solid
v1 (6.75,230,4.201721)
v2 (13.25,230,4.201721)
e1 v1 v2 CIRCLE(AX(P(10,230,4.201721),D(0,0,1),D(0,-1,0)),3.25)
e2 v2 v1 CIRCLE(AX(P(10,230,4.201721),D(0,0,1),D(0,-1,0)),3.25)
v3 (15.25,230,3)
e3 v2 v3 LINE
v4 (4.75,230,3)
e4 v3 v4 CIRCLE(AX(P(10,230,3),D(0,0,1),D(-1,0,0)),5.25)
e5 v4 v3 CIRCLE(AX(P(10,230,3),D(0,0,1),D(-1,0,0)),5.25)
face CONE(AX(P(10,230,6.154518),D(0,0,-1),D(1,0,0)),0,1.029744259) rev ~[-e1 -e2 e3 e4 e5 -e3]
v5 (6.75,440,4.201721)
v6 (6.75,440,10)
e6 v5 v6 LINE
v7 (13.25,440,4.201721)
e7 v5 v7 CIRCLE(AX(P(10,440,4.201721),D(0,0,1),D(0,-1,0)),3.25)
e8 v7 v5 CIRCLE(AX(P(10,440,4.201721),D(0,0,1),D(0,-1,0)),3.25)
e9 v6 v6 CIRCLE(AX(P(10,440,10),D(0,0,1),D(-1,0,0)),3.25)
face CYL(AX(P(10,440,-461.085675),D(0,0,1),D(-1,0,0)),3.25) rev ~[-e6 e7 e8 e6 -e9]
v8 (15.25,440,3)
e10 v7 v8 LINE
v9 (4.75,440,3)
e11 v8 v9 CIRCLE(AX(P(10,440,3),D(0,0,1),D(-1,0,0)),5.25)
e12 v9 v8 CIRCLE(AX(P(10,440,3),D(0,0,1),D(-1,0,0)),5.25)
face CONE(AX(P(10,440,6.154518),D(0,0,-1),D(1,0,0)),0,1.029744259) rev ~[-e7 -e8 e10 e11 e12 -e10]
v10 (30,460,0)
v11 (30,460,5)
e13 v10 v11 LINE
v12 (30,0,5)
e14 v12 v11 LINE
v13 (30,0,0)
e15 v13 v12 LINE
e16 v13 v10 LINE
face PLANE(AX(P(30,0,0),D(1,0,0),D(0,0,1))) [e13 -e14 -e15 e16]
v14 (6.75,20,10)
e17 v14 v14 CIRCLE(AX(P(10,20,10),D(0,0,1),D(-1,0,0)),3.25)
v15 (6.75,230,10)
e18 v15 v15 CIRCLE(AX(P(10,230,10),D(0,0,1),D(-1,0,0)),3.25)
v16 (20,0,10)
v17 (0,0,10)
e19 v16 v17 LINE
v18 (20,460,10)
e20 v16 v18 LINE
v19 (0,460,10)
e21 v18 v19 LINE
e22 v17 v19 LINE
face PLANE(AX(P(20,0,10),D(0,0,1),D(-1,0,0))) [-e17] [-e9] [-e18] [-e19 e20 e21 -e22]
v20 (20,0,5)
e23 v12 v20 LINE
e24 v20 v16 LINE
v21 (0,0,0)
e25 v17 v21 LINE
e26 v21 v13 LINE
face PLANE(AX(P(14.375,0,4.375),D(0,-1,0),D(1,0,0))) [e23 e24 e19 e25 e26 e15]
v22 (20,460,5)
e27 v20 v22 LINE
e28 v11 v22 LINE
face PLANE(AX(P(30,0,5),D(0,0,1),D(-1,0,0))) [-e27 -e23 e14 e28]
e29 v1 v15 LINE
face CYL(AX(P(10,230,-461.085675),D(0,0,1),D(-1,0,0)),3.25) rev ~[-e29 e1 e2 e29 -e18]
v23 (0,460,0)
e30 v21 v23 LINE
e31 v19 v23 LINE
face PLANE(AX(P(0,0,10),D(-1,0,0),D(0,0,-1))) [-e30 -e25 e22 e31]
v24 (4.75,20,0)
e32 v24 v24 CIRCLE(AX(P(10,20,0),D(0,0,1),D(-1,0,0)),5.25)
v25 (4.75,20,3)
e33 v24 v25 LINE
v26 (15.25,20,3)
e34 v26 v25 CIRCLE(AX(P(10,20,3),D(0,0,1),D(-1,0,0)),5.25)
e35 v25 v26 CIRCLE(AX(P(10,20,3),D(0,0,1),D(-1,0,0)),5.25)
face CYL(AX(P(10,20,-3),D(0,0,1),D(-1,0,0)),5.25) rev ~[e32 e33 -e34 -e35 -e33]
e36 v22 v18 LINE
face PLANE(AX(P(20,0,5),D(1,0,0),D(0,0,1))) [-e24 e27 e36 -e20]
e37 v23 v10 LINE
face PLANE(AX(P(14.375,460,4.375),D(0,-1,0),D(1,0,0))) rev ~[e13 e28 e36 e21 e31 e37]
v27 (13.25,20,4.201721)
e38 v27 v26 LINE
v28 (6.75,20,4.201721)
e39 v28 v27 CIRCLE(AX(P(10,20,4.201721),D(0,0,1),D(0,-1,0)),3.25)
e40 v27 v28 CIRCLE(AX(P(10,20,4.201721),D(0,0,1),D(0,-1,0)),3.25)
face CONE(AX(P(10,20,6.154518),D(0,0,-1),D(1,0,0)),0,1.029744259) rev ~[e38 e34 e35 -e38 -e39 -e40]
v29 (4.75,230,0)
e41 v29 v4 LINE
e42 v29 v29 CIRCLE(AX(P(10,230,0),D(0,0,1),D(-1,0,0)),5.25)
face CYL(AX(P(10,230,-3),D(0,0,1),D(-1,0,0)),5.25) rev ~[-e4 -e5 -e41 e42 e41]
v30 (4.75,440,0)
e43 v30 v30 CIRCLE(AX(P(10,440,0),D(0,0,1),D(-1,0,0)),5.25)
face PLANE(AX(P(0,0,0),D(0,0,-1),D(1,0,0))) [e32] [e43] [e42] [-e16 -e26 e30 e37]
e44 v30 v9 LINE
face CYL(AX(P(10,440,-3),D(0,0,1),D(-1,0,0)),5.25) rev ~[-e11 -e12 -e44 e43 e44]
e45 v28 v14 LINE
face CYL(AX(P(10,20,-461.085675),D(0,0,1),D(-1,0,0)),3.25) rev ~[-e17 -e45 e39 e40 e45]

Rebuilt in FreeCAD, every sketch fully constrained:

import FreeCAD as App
import Part
import Sketcher


def add_polygon(sketch, points):
    """Adds a closed chain of lines whose ends are joined by coincident constraints."""
    first, n = sketch.GeometryCount, len(points)
    for a, b in zip(points, points[1:] + points[:1]):
        sketch.addGeometry(Part.LineSegment(App.Vector(*a, 0), App.Vector(*b, 0)), False)
    for i in range(n):
        sketch.addConstraint(Sketcher.Constraint("Coincident", first + i, 2, first + (i + 1) % n, 1))

doc = App.newDocument("Part")
body = doc.addObject("PartDesign::Body", "Body")

sketch1 = body.newObject("Sketcher::SketchObject", "Sketch")
sketch1.AttachmentSupport = (doc.getObject("XZ_Plane"), [""])
sketch1.MapMode = "FlatFace"
add_polygon(sketch1, [(0, 10), (0, 0), (30, 0), (30, 5), (20, 5), (20, 10)])
sketch1.addConstraint([
    Sketcher.Constraint("Vertical", 0),
    Sketcher.Constraint("Horizontal", 1),
    Sketcher.Constraint("Vertical", 2),
    Sketcher.Constraint("Horizontal", 3),
    Sketcher.Constraint("Vertical", 4),
    Sketcher.Constraint("Horizontal", 5),
    Sketcher.Constraint("Coincident", 0, 2, -1, 1),
    Sketcher.Constraint("Equal", 3, 0),
    Sketcher.Constraint("Equal", 2, 4),
    Sketcher.Constraint("DistanceX", 1, 1, 1, 2, 30.0),
    Sketcher.Constraint("DistanceX", 3, 2, 3, 1, 10.0),
])
pad1 = body.newObject("PartDesign::Pad", "Pad")
pad1.Profile = sketch1
pad1.Length = 460
pad1.Reversed = True

sketch2 = body.newObject("Sketcher::SketchObject", "Sketch001")
sketch2.AttachmentSupport = (doc.getObject("XY_Plane"), [""])
sketch2.MapMode = "FlatFace"
sketch2.addGeometry(Part.Circle(App.Vector(10, 440, 0), App.Vector(0, 0, 1), 3.2), False)
sketch2.addConstraint([
    Sketcher.Constraint("Diameter", 0, 6.5),
    Sketcher.Constraint("DistanceX", -1, 1, 0, 3, 10.0),
    Sketcher.Constraint("DistanceY", -1, 1, 0, 3, 440.0),
])
doc.recompute()
hole = body.newObject("PartDesign::Hole", "Hole")
hole.Profile = sketch2
hole.ThreadType = "None"
hole.Diameter = 6.5
hole.DepthType = "ThroughAll"
hole.Reversed = True

sketch3 = body.newObject("Sketcher::SketchObject", "Sketch002")
sketch3.AttachmentSupport = (doc.getObject("XY_Plane"), [""])
sketch3.MapMode = "FlatFace"
sketch3.addGeometry(Part.Circle(App.Vector(10, 230, 0), App.Vector(0, 0, 1), 3.2), False)
sketch3.addConstraint([
    Sketcher.Constraint("Diameter", 0, 6.5),
    Sketcher.Constraint("DistanceX", -1, 1, 0, 3, 10.0),
    Sketcher.Constraint("DistanceY", -1, 1, 0, 3, 230.0),
])
doc.recompute()
hole2 = body.newObject("PartDesign::Hole", "Hole001")
hole2.Profile = sketch3
hole2.ThreadType = "None"
hole2.Diameter = 6.5
hole2.DepthType = "ThroughAll"
hole2.Reversed = True

sketch4 = body.newObject("Sketcher::SketchObject", "Sketch003")
sketch4.AttachmentSupport = (doc.getObject("XY_Plane"), [""])
sketch4.MapMode = "FlatFace"
sketch4.addGeometry(Part.Circle(App.Vector(10, 20, 0), App.Vector(0, 0, 1), 3.2), False)
sketch4.addConstraint([
    Sketcher.Constraint("Diameter", 0, 6.5),
    Sketcher.Constraint("DistanceX", -1, 1, 0, 3, 10.0),
    Sketcher.Constraint("DistanceY", -1, 1, 0, 3, 20.0),
])
doc.recompute()
hole3 = body.newObject("PartDesign::Hole", "Hole002")
hole3.Profile = sketch4
hole3.ThreadType = "None"
hole3.Diameter = 6.5
hole3.DepthType = "ThroughAll"
hole3.Reversed = True

sketch5 = body.newObject("Sketcher::SketchObject", "Sketch004")
sketch5.AttachmentSupport = (doc.getObject("XY_Plane"), [""])
sketch5.MapMode = "FlatFace"
sketch5.addGeometry(Part.Circle(App.Vector(10, 440, 0), App.Vector(0, 0, 1), 5), False)
sketch5.addConstraint([
    Sketcher.Constraint("Diameter", 0, 10.5),
    Sketcher.Constraint("DistanceX", -1, 1, 0, 3, 10.0),
    Sketcher.Constraint("DistanceY", -1, 1, 0, 3, 440.0),
])
doc.recompute()
hole4 = body.newObject("PartDesign::Hole", "Hole003")
hole4.Profile = sketch5
hole4.ThreadType = "None"
hole4.Diameter = 10.5
hole4.DepthType = "Dimension"
hole4.Depth = 3
hole4.DrillPoint = "Angled"
hole4.DrillPointAngle = 118
hole4.Reversed = True

sketch6 = body.newObject("Sketcher::SketchObject", "Sketch005")
sketch6.AttachmentSupport = (doc.getObject("XY_Plane"), [""])
sketch6.MapMode = "FlatFace"
sketch6.addGeometry(Part.Circle(App.Vector(10, 230, 0), App.Vector(0, 0, 1), 5), False)
sketch6.addConstraint([
    Sketcher.Constraint("Diameter", 0, 10.5),
    Sketcher.Constraint("DistanceX", -1, 1, 0, 3, 10.0),
    Sketcher.Constraint("DistanceY", -1, 1, 0, 3, 230.0),
])
doc.recompute()
hole5 = body.newObject("PartDesign::Hole", "Hole004")
hole5.Profile = sketch6
hole5.ThreadType = "None"
hole5.Diameter = 10.5
hole5.DepthType = "Dimension"
hole5.Depth = 3
hole5.DrillPoint = "Angled"
hole5.DrillPointAngle = 118
hole5.Reversed = True

sketch7 = body.newObject("Sketcher::SketchObject", "Sketch006")
sketch7.AttachmentSupport = (doc.getObject("XY_Plane"), [""])
sketch7.MapMode = "FlatFace"
sketch7.addGeometry(Part.Circle(App.Vector(10, 20, 0), App.Vector(0, 0, 1), 5), False)
sketch7.addConstraint([
    Sketcher.Constraint("Diameter", 0, 10.5),
    Sketcher.Constraint("DistanceX", -1, 1, 0, 3, 10.0),
    Sketcher.Constraint("DistanceY", -1, 1, 0, 3, 20.0),
])
doc.recompute()
hole6 = body.newObject("PartDesign::Hole", "Hole005")
hole6.Profile = sketch7
hole6.ThreadType = "None"
hole6.Diameter = 10.5
hole6.DepthType = "Dimension"
hole6.Depth = 3
hole6.DrillPoint = "Angled"
hole6.DrillPointAngle = 118
hole6.Reversed = True

doc.recompute()
